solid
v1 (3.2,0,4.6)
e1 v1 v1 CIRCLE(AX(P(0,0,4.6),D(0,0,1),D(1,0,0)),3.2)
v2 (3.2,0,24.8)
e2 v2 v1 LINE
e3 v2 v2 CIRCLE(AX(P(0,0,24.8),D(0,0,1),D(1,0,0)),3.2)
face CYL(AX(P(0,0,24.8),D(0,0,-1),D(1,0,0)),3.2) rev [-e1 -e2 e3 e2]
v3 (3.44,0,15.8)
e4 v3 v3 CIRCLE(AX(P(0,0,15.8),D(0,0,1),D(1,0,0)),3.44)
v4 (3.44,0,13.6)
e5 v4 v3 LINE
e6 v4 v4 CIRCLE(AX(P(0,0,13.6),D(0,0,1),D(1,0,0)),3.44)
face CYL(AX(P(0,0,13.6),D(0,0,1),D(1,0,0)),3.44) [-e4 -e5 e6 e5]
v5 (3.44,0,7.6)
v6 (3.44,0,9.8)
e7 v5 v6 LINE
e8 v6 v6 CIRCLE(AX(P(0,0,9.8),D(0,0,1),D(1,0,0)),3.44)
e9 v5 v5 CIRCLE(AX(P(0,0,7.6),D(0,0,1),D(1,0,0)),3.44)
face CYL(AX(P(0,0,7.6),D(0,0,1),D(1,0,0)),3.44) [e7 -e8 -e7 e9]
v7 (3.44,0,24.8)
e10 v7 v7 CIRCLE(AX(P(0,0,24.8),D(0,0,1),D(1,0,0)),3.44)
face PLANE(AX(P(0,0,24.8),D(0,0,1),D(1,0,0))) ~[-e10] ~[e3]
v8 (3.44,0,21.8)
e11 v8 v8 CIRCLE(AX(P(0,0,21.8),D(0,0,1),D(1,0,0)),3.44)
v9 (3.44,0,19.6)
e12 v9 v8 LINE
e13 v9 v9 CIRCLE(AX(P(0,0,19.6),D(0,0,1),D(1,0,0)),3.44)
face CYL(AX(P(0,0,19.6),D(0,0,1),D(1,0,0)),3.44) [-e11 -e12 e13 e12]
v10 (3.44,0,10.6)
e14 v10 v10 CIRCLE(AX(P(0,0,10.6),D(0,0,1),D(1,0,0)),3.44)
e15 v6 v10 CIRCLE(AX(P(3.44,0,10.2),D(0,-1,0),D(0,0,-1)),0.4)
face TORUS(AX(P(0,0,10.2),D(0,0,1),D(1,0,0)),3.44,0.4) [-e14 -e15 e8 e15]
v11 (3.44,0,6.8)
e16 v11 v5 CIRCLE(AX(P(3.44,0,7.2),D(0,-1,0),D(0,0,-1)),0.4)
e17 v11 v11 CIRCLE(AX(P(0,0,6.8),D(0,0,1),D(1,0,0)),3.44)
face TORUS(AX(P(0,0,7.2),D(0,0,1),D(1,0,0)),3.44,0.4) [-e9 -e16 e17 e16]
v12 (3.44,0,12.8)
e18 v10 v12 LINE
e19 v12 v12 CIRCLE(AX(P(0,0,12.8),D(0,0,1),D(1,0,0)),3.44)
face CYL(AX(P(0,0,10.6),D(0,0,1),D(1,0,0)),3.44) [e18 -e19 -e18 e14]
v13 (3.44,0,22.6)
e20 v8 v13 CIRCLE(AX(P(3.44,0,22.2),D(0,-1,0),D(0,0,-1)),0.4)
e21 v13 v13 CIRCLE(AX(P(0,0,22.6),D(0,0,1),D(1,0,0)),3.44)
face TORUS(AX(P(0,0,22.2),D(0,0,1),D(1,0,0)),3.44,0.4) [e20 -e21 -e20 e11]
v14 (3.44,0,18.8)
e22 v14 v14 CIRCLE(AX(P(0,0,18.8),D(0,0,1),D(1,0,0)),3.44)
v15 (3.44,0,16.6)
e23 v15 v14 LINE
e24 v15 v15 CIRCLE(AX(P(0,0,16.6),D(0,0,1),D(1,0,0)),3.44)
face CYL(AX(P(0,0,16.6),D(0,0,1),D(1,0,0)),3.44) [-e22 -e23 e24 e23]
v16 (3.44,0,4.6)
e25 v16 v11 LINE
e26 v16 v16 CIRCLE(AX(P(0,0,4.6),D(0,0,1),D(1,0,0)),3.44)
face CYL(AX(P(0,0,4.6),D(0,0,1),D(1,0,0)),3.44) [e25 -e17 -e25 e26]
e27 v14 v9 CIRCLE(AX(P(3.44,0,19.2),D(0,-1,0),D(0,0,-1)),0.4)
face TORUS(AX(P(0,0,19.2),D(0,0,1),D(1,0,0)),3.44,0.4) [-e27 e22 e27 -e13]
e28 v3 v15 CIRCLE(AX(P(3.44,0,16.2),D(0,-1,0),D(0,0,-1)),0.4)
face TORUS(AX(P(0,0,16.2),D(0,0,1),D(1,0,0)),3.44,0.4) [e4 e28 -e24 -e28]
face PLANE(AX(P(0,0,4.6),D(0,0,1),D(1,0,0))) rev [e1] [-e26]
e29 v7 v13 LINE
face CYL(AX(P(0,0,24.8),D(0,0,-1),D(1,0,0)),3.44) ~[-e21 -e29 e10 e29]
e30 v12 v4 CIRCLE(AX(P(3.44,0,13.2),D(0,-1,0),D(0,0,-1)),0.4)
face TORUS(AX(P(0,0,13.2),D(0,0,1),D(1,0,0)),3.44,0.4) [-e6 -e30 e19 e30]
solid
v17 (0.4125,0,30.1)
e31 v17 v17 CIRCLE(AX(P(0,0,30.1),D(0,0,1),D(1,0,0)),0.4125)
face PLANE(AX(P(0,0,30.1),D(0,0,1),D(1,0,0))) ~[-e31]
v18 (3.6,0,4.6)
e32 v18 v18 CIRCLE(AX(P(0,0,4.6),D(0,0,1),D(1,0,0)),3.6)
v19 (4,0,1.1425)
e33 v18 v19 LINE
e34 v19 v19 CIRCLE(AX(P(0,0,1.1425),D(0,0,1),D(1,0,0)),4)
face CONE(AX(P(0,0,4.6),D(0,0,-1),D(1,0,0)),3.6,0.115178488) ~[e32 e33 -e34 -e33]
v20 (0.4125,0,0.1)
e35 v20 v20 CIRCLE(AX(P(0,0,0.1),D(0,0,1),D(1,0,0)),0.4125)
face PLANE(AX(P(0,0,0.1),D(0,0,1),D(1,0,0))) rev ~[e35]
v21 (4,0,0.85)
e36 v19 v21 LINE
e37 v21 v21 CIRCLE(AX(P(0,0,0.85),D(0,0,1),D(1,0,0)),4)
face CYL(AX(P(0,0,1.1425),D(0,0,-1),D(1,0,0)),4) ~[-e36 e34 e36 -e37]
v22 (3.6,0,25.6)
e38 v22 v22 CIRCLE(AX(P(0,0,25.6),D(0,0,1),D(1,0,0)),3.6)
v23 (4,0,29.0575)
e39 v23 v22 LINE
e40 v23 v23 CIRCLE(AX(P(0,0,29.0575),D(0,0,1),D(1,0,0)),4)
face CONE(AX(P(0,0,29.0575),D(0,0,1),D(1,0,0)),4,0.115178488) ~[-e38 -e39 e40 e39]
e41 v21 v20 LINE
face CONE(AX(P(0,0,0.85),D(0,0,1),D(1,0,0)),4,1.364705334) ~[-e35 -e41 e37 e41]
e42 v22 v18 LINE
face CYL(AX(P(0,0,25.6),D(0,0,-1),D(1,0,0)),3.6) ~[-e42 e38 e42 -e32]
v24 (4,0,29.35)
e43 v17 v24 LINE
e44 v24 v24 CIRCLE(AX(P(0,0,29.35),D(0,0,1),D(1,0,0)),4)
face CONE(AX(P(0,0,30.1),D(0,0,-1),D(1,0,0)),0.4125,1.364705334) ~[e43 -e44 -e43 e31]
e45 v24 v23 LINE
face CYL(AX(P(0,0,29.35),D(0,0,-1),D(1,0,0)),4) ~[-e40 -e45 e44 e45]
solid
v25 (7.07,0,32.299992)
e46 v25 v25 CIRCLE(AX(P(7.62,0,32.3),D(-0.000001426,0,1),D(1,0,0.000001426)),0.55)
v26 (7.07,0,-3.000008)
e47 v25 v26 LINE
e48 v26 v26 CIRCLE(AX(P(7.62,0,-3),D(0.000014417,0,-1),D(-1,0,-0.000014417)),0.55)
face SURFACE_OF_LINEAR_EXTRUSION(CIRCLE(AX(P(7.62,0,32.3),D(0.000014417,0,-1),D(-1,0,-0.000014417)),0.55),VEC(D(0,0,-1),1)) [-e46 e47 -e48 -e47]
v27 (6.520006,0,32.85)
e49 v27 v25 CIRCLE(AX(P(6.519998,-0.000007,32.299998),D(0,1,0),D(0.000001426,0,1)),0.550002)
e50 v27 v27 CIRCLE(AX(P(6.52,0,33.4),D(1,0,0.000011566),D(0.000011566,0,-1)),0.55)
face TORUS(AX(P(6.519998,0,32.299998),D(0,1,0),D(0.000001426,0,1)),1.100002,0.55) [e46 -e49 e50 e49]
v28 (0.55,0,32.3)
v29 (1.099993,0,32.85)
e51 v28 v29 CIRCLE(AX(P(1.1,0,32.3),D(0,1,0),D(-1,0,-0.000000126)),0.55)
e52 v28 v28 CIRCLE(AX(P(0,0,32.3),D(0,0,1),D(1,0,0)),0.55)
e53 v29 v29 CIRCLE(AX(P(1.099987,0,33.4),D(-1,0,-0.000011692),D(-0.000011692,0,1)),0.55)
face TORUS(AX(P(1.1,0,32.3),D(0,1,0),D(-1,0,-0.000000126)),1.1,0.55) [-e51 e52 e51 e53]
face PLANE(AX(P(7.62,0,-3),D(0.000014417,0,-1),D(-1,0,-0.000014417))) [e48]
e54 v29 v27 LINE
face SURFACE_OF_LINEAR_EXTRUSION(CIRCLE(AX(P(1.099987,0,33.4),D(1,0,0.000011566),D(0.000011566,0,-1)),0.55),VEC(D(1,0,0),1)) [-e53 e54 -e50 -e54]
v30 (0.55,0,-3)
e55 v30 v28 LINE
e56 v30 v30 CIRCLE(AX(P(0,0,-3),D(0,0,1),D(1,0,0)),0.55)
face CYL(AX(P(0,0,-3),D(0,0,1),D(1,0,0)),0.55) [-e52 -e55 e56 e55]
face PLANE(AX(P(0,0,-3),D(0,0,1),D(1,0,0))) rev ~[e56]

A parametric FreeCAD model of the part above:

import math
import FreeCAD as App
import Part
import Sketcher
from FreeCAD import Vector


def add_polygon(sketch, points):
    """Adds a closed chain of lines whose ends are joined by coincident constraints."""
    first, n = sketch.GeometryCount, len(points)
    for a, b in zip(points, points[1:] + points[:1]):
        sketch.addGeometry(Part.LineSegment(App.Vector(*a, 0), App.Vector(*b, 0)), False)
    for i in range(n):
        sketch.addConstraint(Sketcher.Constraint("Coincident", first + i, 2, first + (i + 1) % n, 1))

doc = App.newDocument("Part")
body = doc.addObject("PartDesign::Body", "Body")

sketch1 = doc.addObject("Sketcher::SketchObject", "Sketch")
body.addObject(sketch1)
sketch1.AttachmentSupport = (doc.XY_Plane, [""])
sketch1.MapMode = "FlatFace"
sketch1.AttachmentOffset = App.Placement(Vector(0, 0, -2), App.Rotation())
sketch1.addGeometry(Part.Circle(Vector(0, 0, 0), Vector(0, 0, 1), 0.55), False)
sketch1.addConstraint(Sketcher.Constraint("Coincident", 0, 3, -1, 1))
sketch1.addConstraint(Sketcher.Constraint("Diameter", 0, 1.1))

sketch2 = doc.addObject("Sketcher::SketchObject", "Sketch001")
body.addObject(sketch2)
sketch2.AttachmentSupport = (doc.XZ_Plane, [""])
sketch2.MapMode = "FlatFace"
sketch2.addGeometry(Part.LineSegment(Vector(0, -3, 0), Vector(0, 32.3, 0)), False)
sketch2.addGeometry(Part.ArcOfCircle(Part.Circle(Vector(1.1, 32.3, 0), Vector(0, 0, 1), 1.1), math.radians(90.00067), math.radians(180.000007)), False)
sketch2.addGeometry(Part.LineSegment(Vector(1.099987, 33.4, 0), Vector(6.52, 33.4, 0)), False)
sketch2.addGeometry(Part.ArcOfCircle(Part.Circle(Vector(6.519998, 32.299998, 0), Vector(0, 0, 1), 1.100002), math.radians(0.000082), math.radians(89.999918)), False)
sketch2.addGeometry(Part.LineSegment(Vector(7.62, 32.3, 0), Vector(7.62, -3, 0)), False)
sketch2.addConstraint(Sketcher.Constraint("Tangent", 0, 2, 1, 2))
sketch2.addConstraint(Sketcher.Constraint("Coincident", 1, 1, 2, 1))
sketch2.addConstraint(Sketcher.Constraint("Tangent", 2, 2, 3, 2))
sketch2.addConstraint(Sketcher.Constraint("Tangent", 3, 1, 4, 1))
sketch2.addConstraint(Sketcher.Constraint("Vertical", 0))
sketch2.addConstraint(Sketcher.Constraint("Horizontal", 2))
sketch2.addConstraint(Sketcher.Constraint("Vertical", 4))
sketch2.addConstraint(Sketcher.Constraint("Equal", 1, 3))
sketch2.addConstraint(Sketcher.Constraint("PointOnObject", 0, 1, -2))
sketch2.addConstraint(Sketcher.Constraint("Horizontal", 0, 1, 4, 2))
sketch2.addConstraint(Sketcher.Constraint("Radius", 1, 1.1))
sketch2.addConstraint(Sketcher.Constraint("DistanceY", 0, 1, 0, 2, 35.3))
sketch2.addConstraint(Sketcher.Constraint("DistanceY", 0, 1, -1, 1, 3.0))
sketch2.addConstraint(Sketcher.Constraint("DistanceX", -1, 1, 3, 3, 6.519998))
sketch2.addConstraint(Sketcher.Constraint("DistanceX", 2, 1, 2, 2, 5.420013))
doc.recompute()

additivepipe = doc.addObject("PartDesign::AdditivePipe", "AdditivePipe")
body.addObject(additivepipe)
additivepipe.Profile = sketch1
additivepipe.Spine = (sketch2, ["Edge1", "Edge2", "Edge3", "Edge4", "Edge5"])
body2 = doc.addObject("PartDesign::Body", "Body001")

sketch3 = doc.addObject("Sketcher::SketchObject", "Sketch002")
body2.addObject(sketch3)
sketch3.AttachmentSupport = (doc.getObject("XZ_Plane001"), [""])
sketch3.MapMode = "FlatFace"
add_polygon(sketch3, [(0, 30.1), (0, 0.1), (0.4125, 0.1), (4, 0.85), (4, 1.1425), (3.6, 4.6), (3.6, 25.6), (4, 29.0575), (4, 29.35), (0.4125, 30.1)])
sketch3.addConstraint(Sketcher.Constraint("Vertical", 0))
sketch3.addConstraint(Sketcher.Constraint("Horizontal", 1))
sketch3.addConstraint(Sketcher.Constraint("Vertical", 3))
sketch3.addConstraint(Sketcher.Constraint("Vertical", 5))
sketch3.addConstraint(Sketcher.Constraint("Vertical", 7))
sketch3.addConstraint(Sketcher.Constraint("Horizontal", 9))
sketch3.addConstraint(Sketcher.Constraint("PointOnObject", 0, 2, -2))
sketch3.addConstraint(Sketcher.Constraint("Vertical", 3, 2, 6, 2))
sketch3.addConstraint(Sketcher.Constraint("Vertical", 1, 2, 8, 2))
sketch3.addConstraint(Sketcher.Constraint("Equal", 3, 7))
sketch3.addConstraint(Sketcher.Constraint("Equal", 4, 6))
sketch3.addConstraint(Sketcher.Constraint("Equal", 2, 8))
sketch3.addConstraint(Sketcher.Constraint("DistanceY", 0, 2, 0, 1, 30.0))
sketch3.addConstraint(Sketcher.Constraint("DistanceY", 5, 1, 5, 2, 21.0))
sketch3.addConstraint(Sketcher.Constraint("DistanceX", -1, 1, 2, 2, 4.0))
sketch3.addConstraint(Sketcher.Constraint("DistanceY", -1, 1, 0, 2, 0.1))
sketch3.addConstraint(Sketcher.Constraint("DistanceX", -1, 1, 4, 2, 3.6))
sketch3.addConstraint(Sketcher.Constraint("DistanceY", 2, 2, 7, 2, 28.5))
sketch3.addConstraint(Sketcher.Constraint("DistanceX", 1, 1, 1, 2, 0.4125))
sketch3.addConstraint(Sketcher.Constraint("DistanceY", 3, 1, 3, 2, 0.2925))
revolution = doc.addObject("PartDesign::Revolution", "Revolution")
body2.addObject(revolution)
revolution.Profile = sketch3
revolution.ReferenceAxis = (sketch3, ["V_Axis"])
revolution.Angle = 360
body3 = doc.addObject("PartDesign::Body", "Body002")

sketch4 = doc.addObject("Sketcher::SketchObject", "Sketch003")
body3.addObject(sketch4)
sketch4.AttachmentSupport = (doc.getObject("XZ_Plane002"), [""])
sketch4.MapMode = "FlatFace"
sketch4.addGeometry(Part.LineSegment(Vector(3.2, 24.8, 0), Vector(3.2, 4.6, 0)), False)
sketch4.addGeometry(Part.LineSegment(Vector(3.2, 4.6, 0), Vector(3.44, 4.6, 0)), False)
sketch4.addGeometry(Part.LineSegment(Vector(3.44, 4.6, 0), Vector(3.44, 6.8, 0)), False)
sketch4.addGeometry(Part.ArcOfCircle(Part.Circle(Vector(3.44, 7.2, 0), Vector(0, 0, 1), 0.4), math.radians(-90), math.radians(90)), False)
sketch4.addGeometry(Part.LineSegment(Vector(3.44, 7.6, 0), Vector(3.44, 9.8, 0)), False)
sketch4.addGeometry(Part.ArcOfCircle(Part.Circle(Vector(3.44, 10.2, 0), Vector(0, 0, 1), 0.4), math.radians(-90), math.radians(90)), False)
sketch4.addGeometry(Part.LineSegment(Vector(3.44, 10.6, 0), Vector(3.44, 12.8, 0)), False)
sketch4.addGeometry(Part.ArcOfCircle(Part.Circle(Vector(3.44, 13.2, 0), Vector(0, 0, 1), 0.4), math.radians(-90), math.radians(90)), False)
sketch4.addGeometry(Part.LineSegment(Vector(3.44, 13.6, 0), Vector(3.44, 15.8, 0)), False)
sketch4.addGeometry(Part.ArcOfCircle(Part.Circle(Vector(3.44, 16.2, 0), Vector(0, 0, 1), 0.4), math.radians(-90), math.radians(90)), False)
sketch4.addGeometry(Part.LineSegment(Vector(3.44, 16.6, 0), Vector(3.44, 18.8, 0)), False)
sketch4.addGeometry(Part.ArcOfCircle(Part.Circle(Vector(3.44, 19.2, 0), Vector(0, 0, 1), 0.4), math.radians(-90), math.radians(90)), False)
sketch4.addGeometry(Part.LineSegment(Vector(3.44, 19.6, 0), Vector(3.44, 21.8, 0)), False)
sketch4.addGeometry(Part.ArcOfCircle(Part.Circle(Vector(3.44, 22.2, 0), Vector(0, 0, 1), 0.4), math.radians(-90), math.radians(90)), False)
sketch4.addGeometry(Part.LineSegment(Vector(3.44, 22.6, 0), Vector(3.44, 24.8, 0)), False)
sketch4.addGeometry(Part.LineSegment(Vector(3.44, 24.8, 0), Vector(3.2, 24.8, 0)), False)
sketch4.addConstraint(Sketcher.Constraint("Coincident", 0, 2, 1, 1))
sketch4.addConstraint(Sketcher.Constraint("Coincident", 1, 2, 2, 1))
sketch4.addConstraint(Sketcher.Constraint("Coincident", 2, 2, 3, 1))
sketch4.addConstraint(Sketcher.Constraint("Coincident", 3, 2, 4, 1))
sketch4.addConstraint(Sketcher.Constraint("Coincident", 4, 2, 5, 1))
sketch4.addConstraint(Sketcher.Constraint("Coincident", 5, 2, 6, 1))
sketch4.addConstraint(Sketcher.Constraint("Coincident", 6, 2, 7, 1))
sketch4.addConstraint(Sketcher.Constraint("Coincident", 7, 2, 8, 1))
sketch4.addConstraint(Sketcher.Constraint("Coincident", 8, 2, 9, 1))
sketch4.addConstraint(Sketcher.Constraint("Coincident", 9, 2, 10, 1))
sketch4.addConstraint(Sketcher.Constraint("Coincident", 10, 2, 11, 1))
sketch4.addConstraint(Sketcher.Constraint("Coincident", 11, 2, 12, 1))
sketch4.addConstraint(Sketcher.Constraint("Coincident", 12, 2, 13, 1))
sketch4.addConstraint(Sketcher.Constraint("Coincident", 13, 2, 14, 1))
sketch4.addConstraint(Sketcher.Constraint("Coincident", 14, 2, 15, 1))
sketch4.addConstraint(Sketcher.Constraint("Coincident", 15, 2, 0, 1))
sketch4.addConstraint(Sketcher.Constraint("Vertical", 0))
sketch4.addConstraint(Sketcher.Constraint("Horizontal", 1))
sketch4.addConstraint(Sketcher.Constraint("Vertical", 2))
sketch4.addConstraint(Sketcher.Constraint("Vertical", 4))
sketch4.addConstraint(Sketcher.Constraint("Vertical", 6))
sketch4.addConstraint(Sketcher.Constraint("Vertical", 8))
sketch4.addConstraint(Sketcher.Constraint("Vertical", 10))
sketch4.addConstraint(Sketcher.Constraint("Vertical", 12))
sketch4.addConstraint(Sketcher.Constraint("Vertical", 14))
sketch4.addConstraint(Sketcher.Constraint("Horizontal", 15))
sketch4.addConstraint(Sketcher.Constraint("Equal", 3, 5))
sketch4.addConstraint(Sketcher.Constraint("Equal", 5, 7))
sketch4.addConstraint(Sketcher.Constraint("Equal", 7, 9))
sketch4.addConstraint(Sketcher.Constraint("Equal", 9, 11))
sketch4.addConstraint(Sketcher.Constraint("Equal", 11, 13))
sketch4.addConstraint(Sketcher.Constraint("Vertical", 3, 3, 5, 3))
sketch4.addConstraint(Sketcher.Constraint("Vertical", 5, 3, 7, 3))
sketch4.addConstraint(Sketcher.Constraint("Vertical", 7, 3, 9, 3))
sketch4.addConstraint(Sketcher.Constraint("Vertical", 9, 3, 11, 3))
sketch4.addConstraint(Sketcher.Constraint("Vertical", 11, 3, 13, 3))
sketch4.addConstraint(Sketcher.Constraint("Vertical", 13, 3, 1, 2))
sketch4.addConstraint(Sketcher.Constraint("Vertical", 2, 2, 3, 2))
sketch4.addConstraint(Sketcher.Constraint("Vertical", 4, 2, 5, 2))
sketch4.addConstraint(Sketcher.Constraint("Vertical", 6, 2, 7, 2))
sketch4.addConstraint(Sketcher.Constraint("Vertical", 8, 2, 9, 2))
sketch4.addConstraint(Sketcher.Constraint("Vertical", 10, 2, 11, 2))
sketch4.addConstraint(Sketcher.Constraint("Vertical", 12, 2, 13, 2))
sketch4.addConstraint(Sketcher.Constraint("Equal", 2, 4))
sketch4.addConstraint(Sketcher.Constraint("Equal", 4, 6))
sketch4.addConstraint(Sketcher.Constraint("Equal", 6, 8))
sketch4.addConstraint(Sketcher.Constraint("Equal", 8, 10))
sketch4.addConstraint(Sketcher.Constraint("Equal", 10, 12))
sketch4.addConstraint(Sketcher.Constraint("Equal", 12, 14))
sketch4.addConstraint(Sketcher.Constraint("Radius", 3, 0.4))
sketch4.addConstraint(Sketcher.Constraint("DistanceY", 0, 2, 0, 1, 20.2))
sketch4.addConstraint(Sketcher.Constraint("DistanceX", 1, 1, 1, 2, 0.24))
sketch4.addConstraint(Sketcher.Constraint("DistanceY", -1, 1, 3, 3, 7.2))
sketch4.addConstraint(Sketcher.Constraint("DistanceX", -1, 1, 0, 2, 3.2))
revolution2 = doc.addObject("PartDesign::Revolution", "Revolution001")
body3.addObject(revolution2)
revolution2.Profile = sketch4
revolution2.ReferenceAxis = (sketch4, ["V_Axis"])
revolution2.Angle = 360

doc.recompute()
